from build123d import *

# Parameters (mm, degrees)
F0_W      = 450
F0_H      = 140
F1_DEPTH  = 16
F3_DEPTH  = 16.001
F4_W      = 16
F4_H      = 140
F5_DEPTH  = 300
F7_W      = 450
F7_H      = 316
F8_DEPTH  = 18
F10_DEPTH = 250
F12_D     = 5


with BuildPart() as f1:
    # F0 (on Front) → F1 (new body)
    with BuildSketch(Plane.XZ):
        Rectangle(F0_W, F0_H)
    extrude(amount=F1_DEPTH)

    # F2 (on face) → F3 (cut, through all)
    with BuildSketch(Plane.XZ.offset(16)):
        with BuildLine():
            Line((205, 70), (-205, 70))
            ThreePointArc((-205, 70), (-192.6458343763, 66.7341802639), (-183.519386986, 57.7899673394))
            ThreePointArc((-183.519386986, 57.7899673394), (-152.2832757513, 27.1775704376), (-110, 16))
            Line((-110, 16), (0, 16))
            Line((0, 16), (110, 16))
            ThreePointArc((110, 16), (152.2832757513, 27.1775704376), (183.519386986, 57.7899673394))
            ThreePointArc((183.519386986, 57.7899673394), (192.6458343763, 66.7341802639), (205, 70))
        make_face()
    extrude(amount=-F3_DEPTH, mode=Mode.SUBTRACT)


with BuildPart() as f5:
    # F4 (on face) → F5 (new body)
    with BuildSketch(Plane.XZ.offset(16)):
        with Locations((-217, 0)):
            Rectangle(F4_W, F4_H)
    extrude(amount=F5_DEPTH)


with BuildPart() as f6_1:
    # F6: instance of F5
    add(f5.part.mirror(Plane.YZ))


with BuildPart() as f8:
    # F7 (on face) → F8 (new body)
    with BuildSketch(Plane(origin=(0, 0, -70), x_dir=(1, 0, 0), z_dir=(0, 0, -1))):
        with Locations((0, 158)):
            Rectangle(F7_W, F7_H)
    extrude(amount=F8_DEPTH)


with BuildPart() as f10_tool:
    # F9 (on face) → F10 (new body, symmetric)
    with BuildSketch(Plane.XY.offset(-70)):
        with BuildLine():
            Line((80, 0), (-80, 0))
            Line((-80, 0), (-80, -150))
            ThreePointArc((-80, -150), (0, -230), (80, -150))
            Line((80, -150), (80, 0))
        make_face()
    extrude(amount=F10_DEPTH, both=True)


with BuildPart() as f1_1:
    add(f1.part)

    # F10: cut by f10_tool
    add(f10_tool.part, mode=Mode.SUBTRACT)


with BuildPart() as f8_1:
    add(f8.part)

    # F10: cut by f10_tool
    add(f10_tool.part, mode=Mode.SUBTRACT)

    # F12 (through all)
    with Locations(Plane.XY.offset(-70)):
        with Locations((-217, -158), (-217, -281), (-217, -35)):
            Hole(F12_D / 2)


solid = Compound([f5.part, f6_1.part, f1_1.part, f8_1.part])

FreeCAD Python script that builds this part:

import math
import FreeCAD as App
import Part
import Sketcher
from FreeCAD import Vector
Q = App.Units.Quantity

doc = App.newDocument("Part")
body = doc.addObject("PartDesign::Body", "Body")

# Sketch on XZ plane
sketch1 = body.newObject("Sketcher::SketchObject", "Sketch")
sketch1.AttachmentSupport = (doc.getObject("XZ_Plane"), [""])
sketch1.MapMode = "FlatFace"
sketch1.addGeometry([
    Part.LineSegment(Vector(-225, 70, 0), Vector(-225, -70, 0)),
    Part.LineSegment(Vector(-225, -70, 0), Vector(225, -70, 0)),
    Part.LineSegment(Vector(225, -70, 0), Vector(225, 70, 0)),
    Part.LineSegment(Vector(225, 70, 0), Vector(-225, 70, 0)),
], False)
sketch1.addConstraint([
    Sketcher.Constraint("Coincident", 0, 2, 1, 1),
    Sketcher.Constraint("Coincident", 1, 2, 2, 1),
    Sketcher.Constraint("Coincident", 2, 2, 3, 1),
    Sketcher.Constraint("Coincident", 3, 2, 0, 1),
    Sketcher.Constraint("Vertical", 0),
    Sketcher.Constraint("Horizontal", 1),
    Sketcher.Constraint("Vertical", 2),
    Sketcher.Constraint("Horizontal", 3),
    Sketcher.Constraint("Symmetric", 0, 2, 2, 2, -1, 1),
    Sketcher.Constraint("DistanceX", 1, 1, 1, 2, Q("450 mm")),
    Sketcher.Constraint("DistanceY", 0, 2, 0, 1, Q("140 mm")),
])
pad1 = body.newObject("PartDesign::Pad", "Pad")
pad1.Profile = sketch1
pad1.Length = 16

# Sketch on XZ plane
sketch2 = body.newObject("Sketcher::SketchObject", "Sketch001")
sketch2.AttachmentSupport = (doc.getObject("XZ_Plane"), [""])
sketch2.MapMode = "FlatFace"
sketch2.AttachmentOffset = App.Placement(Vector(0, 0, 16), App.Rotation())
sketch2.addGeometry([
    Part.LineSegment(Vector(205, 70, 0), Vector(-205, 70, 0)),  # 0
    Part.ArcOfCircle(Part.Circle(Vector(-205, 45, 0), Vector(0, 0, 1), 25), math.radians(31), math.radians(90)),  # 1
    Part.ArcOfCircle(Part.Circle(Vector(-110, 102, 0), Vector(0, 0, 1), 86), math.radians(-149), math.radians(-90)),  # 2
    Part.LineSegment(Vector(-110, 16, 0), Vector(110, 16, 0)),  # 3
    Part.ArcOfCircle(Part.Circle(Vector(110, 102, 0), Vector(0, 0, 1), 86), math.radians(-90), math.radians(-31)),  # 4
    Part.ArcOfCircle(Part.Circle(Vector(205, 45, 0), Vector(0, 0, 1), 25), math.radians(90), math.radians(149)),  # 5
], False)
sketch2.addConstraint([
    Sketcher.Constraint("Tangent", 0, 2, 1, 2),
    Sketcher.Constraint("Tangent", 1, 1, 2, 1),
    Sketcher.Constraint("Tangent", 2, 2, 3, 1),
    Sketcher.Constraint("Tangent", 3, 2, 4, 1),
    Sketcher.Constraint("Tangent", 4, 2, 5, 2),
    Sketcher.Constraint("Tangent", 5, 1, 0, 1),
    Sketcher.Constraint("Horizontal", 0),
    Sketcher.Constraint("Horizontal", 3),
    Sketcher.Constraint("Equal", 2, 4),
    Sketcher.Constraint("Equal", 1, 5),
    Sketcher.Constraint("Radius", 1, Q("25 mm")),
    Sketcher.Constraint("DistanceX", 0, 2, 0, 1, Q("410 mm")),
    Sketcher.Constraint("DistanceX", 3, 1, 3, 2, Q("220 mm")),
    Sketcher.Constraint("DistanceX", 1, 3, -1, 1, Q("205 mm")),
    Sketcher.Constraint("DistanceY", -1, 1, 1, 3, Q("45 mm")),
    Sketcher.Constraint("DistanceY", -1, 1, 2, 2, Q("16 mm")),
])
pocket1 = body.newObject("PartDesign::Pocket", "Pocket")
pocket1.Profile = sketch2
pocket1.Type = "ThroughAll"
body2 = doc.addObject("PartDesign::Body", "Body001")

# Sketch on XZ plane
sketch3 = body2.newObject("Sketcher::SketchObject", "Sketch002")
sketch3.AttachmentSupport = (doc.getObject("XZ_Plane001"), [""])
sketch3.MapMode = "FlatFace"
sketch3.AttachmentOffset = App.Placement(Vector(0, 0, 16), App.Rotation())
sketch3.addGeometry([
    Part.LineSegment(Vector(-225, 70, 0), Vector(-225, -70, 0)),
    Part.LineSegment(Vector(-225, -70, 0), Vector(-209, -70, 0)),
    Part.LineSegment(Vector(-209, -70, 0), Vector(-209, 70, 0)),
    Part.LineSegment(Vector(-209, 70, 0), Vector(-225, 70, 0)),
], False)
sketch3.addConstraint([
    Sketcher.Constraint("Coincident", 0, 2, 1, 1),
    Sketcher.Constraint("Coincident", 1, 2, 2, 1),
    Sketcher.Constraint("Coincident", 2, 2, 3, 1),
    Sketcher.Constraint("Coincident", 3, 2, 0, 1),
    Sketcher.Constraint("Vertical", 0),
    Sketcher.Constraint("Horizontal", 1),
    Sketcher.Constraint("Vertical", 2),
    Sketcher.Constraint("Horizontal", 3),
    Sketcher.Constraint("DistanceX", 1, 1, 1, 2, Q("16 mm")),
    Sketcher.Constraint("DistanceY", 0, 2, 0, 1, Q("140 mm")),
    Sketcher.Constraint("DistanceX", 0, 2, -1, 1, Q("225 mm")),
    Sketcher.Constraint("DistanceY", 0, 2, -1, 1, Q("70 mm")),
])
pad2 = body2.newObject("PartDesign::Pad", "Pad001")
pad2.Profile = sketch3
pad2.Length = 300
body3 = doc.addObject("PartDesign::Body", "Body002")
doc.recompute()

mirroring = doc.addObject("Part::Mirroring", "Mirroring")
mirroring.Source = body2
mirroring.Base = Vector(0, 0, 0)
mirroring.Normal = Vector(1, 0, 0)
body3.BaseFeature = mirroring
doc.recompute()
body4 = doc.addObject("PartDesign::Body", "Body003")

# Sketch on XY plane
sketch4 = body4.newObject("Sketcher::SketchObject", "Sketch003")
sketch4.AttachmentSupport = (doc.getObject("XY_Plane003"), [""])
sketch4.MapMode = "FlatFace"
sketch4.AttachmentOffset = App.Placement(Vector(0, 0, -70), App.Rotation())
sketch4.addGeometry([
    Part.LineSegment(Vector(-225, -316, 0), Vector(-225, 0, 0)),
    Part.LineSegment(Vector(-225, 0, 0), Vector(225, 0, 0)),
    Part.LineSegment(Vector(225, 0, 0), Vector(225, -316, 0)),
    Part.LineSegment(Vector(225, -316, 0), Vector(-225, -316, 0)),
], False)
sketch4.addConstraint([
    Sketcher.Constraint("Coincident", 0, 2, 1, 1),
    Sketcher.Constraint("Coincident", 1, 2, 2, 1),
    Sketcher.Constraint("Coincident", 2, 2, 3, 1),
    Sketcher.Constraint("Coincident", 3, 2, 0, 1),
    Sketcher.Constraint("Vertical", 0),
    Sketcher.Constraint("Horizontal", 1),
    Sketcher.Constraint("Vertical", 2),
    Sketcher.Constraint("Horizontal", 3),
    Sketcher.Constraint("Symmetric", 0, 2, 1, 2, -1, 1),
    Sketcher.Constraint("DistanceX", 1, 1, 1, 2, Q("450 mm")),
    Sketcher.Constraint("DistanceY", 0, 1, 0, 2, Q("316 mm")),
])
pad3 = body4.newObject("PartDesign::Pad", "Pad002")
pad3.Profile = sketch4
pad3.Length = 18
pad3.Reversed = True
body5 = doc.addObject("PartDesign::Body", "Body004")

# Sketch on XY plane
sketch5 = body5.newObject("Sketcher::SketchObject", "Sketch004")
sketch5.AttachmentSupport = (doc.getObject("XY_Plane004"), [""])
sketch5.MapMode = "FlatFace"
sketch5.AttachmentOffset = App.Placement(Vector(0, 0, -70), App.Rotation())
sketch5.addGeometry([
    Part.LineSegment(Vector(80, 0, 0), Vector(-80, 0, 0)),
    Part.LineSegment(Vector(-80, 0, 0), Vector(-80, -150, 0)),
    Part.ArcOfCircle(Part.Circle(Vector(0, -150, 0), Vector(0, 0, 1), 80), math.radians(180), math.radians(360)),
    Part.LineSegment(Vector(80, -150, 0), Vector(80, 0, 0)),
], False)
sketch5.addConstraint([
    Sketcher.Constraint("Coincident", 0, 2, 1, 1),
    Sketcher.Constraint("Tangent", 1, 2, 2, 1),
    Sketcher.Constraint("Tangent", 2, 2, 3, 1),
    Sketcher.Constraint("Coincident", 3, 2, 0, 1),
    Sketcher.Constraint("Horizontal", 0),
    Sketcher.Constraint("Vertical", 1),
    Sketcher.Constraint("Vertical", 3),
    Sketcher.Constraint("Symmetric", 0, 2, 3, 2, -1, 1),
    Sketcher.Constraint("Radius", 2, Q("80 mm")),
    Sketcher.Constraint("DistanceY", 1, 2, 1, 1, Q("150 mm")),
])
pad4 = body5.newObject("PartDesign::Pad", "Pad003")
pad4.Profile = sketch5
pad4.Length = 500
pad4.Midplane = True
body.AllowCompound = True
doc.recompute()

body6 = doc.addObject("PartDesign::Body", "Body005")
body6.BaseFeature = body5
boolean = body.newObject("PartDesign::Boolean", "Boolean")
boolean.Type = "Cut"
boolean.addObjects([body6])
doc.recompute()

boolean2 = body4.newObject("PartDesign::Boolean", "Boolean001")
boolean2.Type = "Cut"
boolean2.addObjects([body5])

# Sketch on XY plane
sketch6 = body4.newObject("Sketcher::SketchObject", "Sketch005")
sketch6.AttachmentSupport = (doc.getObject("XY_Plane003"), [""])
sketch6.MapMode = "FlatFace"
sketch6.AttachmentOffset = App.Placement(Vector(0, 0, -70), App.Rotation())
sketch6.addGeometry([
    Part.Circle(Vector(-217, -158, 0), Vector(0, 0, 1), 2.5),
    Part.Circle(Vector(-217, -281, 0), Vector(0, 0, 1), 2.5),
    Part.Circle(Vector(-217, -35, 0), Vector(0, 0, 1), 2.5),
], False)
sketch6.addConstraint([
    Sketcher.Constraint("Equal", 0, 1),
    Sketcher.Constraint("Equal", 1, 2),
    Sketcher.Constraint("Vertical", 0, 3, 1, 3),
    Sketcher.Constraint("Vertical", 1, 3, 2, 3),
    Sketcher.Constraint("Diameter", 0, Q("5 mm")),
    Sketcher.Constraint("DistanceX", 0, 3, -1, 1, Q("217 mm")),
    Sketcher.Constraint("DistanceY", 0, 3, -1, 1, Q("158 mm")),
    Sketcher.Constraint("DistanceY", 1, 3, -1, 1, Q("281 mm")),
    Sketcher.Constraint("DistanceY", 2, 3, -1, 1, Q("35 mm")),
])
doc.recompute()
hole = body4.newObject("PartDesign::Hole", "Hole")
hole.Profile = sketch6
hole.ThreadType = "None"
hole.Diameter = 5
hole.DepthType = "ThroughAll"
mirroring.Visibility = False

doc.recompute()
